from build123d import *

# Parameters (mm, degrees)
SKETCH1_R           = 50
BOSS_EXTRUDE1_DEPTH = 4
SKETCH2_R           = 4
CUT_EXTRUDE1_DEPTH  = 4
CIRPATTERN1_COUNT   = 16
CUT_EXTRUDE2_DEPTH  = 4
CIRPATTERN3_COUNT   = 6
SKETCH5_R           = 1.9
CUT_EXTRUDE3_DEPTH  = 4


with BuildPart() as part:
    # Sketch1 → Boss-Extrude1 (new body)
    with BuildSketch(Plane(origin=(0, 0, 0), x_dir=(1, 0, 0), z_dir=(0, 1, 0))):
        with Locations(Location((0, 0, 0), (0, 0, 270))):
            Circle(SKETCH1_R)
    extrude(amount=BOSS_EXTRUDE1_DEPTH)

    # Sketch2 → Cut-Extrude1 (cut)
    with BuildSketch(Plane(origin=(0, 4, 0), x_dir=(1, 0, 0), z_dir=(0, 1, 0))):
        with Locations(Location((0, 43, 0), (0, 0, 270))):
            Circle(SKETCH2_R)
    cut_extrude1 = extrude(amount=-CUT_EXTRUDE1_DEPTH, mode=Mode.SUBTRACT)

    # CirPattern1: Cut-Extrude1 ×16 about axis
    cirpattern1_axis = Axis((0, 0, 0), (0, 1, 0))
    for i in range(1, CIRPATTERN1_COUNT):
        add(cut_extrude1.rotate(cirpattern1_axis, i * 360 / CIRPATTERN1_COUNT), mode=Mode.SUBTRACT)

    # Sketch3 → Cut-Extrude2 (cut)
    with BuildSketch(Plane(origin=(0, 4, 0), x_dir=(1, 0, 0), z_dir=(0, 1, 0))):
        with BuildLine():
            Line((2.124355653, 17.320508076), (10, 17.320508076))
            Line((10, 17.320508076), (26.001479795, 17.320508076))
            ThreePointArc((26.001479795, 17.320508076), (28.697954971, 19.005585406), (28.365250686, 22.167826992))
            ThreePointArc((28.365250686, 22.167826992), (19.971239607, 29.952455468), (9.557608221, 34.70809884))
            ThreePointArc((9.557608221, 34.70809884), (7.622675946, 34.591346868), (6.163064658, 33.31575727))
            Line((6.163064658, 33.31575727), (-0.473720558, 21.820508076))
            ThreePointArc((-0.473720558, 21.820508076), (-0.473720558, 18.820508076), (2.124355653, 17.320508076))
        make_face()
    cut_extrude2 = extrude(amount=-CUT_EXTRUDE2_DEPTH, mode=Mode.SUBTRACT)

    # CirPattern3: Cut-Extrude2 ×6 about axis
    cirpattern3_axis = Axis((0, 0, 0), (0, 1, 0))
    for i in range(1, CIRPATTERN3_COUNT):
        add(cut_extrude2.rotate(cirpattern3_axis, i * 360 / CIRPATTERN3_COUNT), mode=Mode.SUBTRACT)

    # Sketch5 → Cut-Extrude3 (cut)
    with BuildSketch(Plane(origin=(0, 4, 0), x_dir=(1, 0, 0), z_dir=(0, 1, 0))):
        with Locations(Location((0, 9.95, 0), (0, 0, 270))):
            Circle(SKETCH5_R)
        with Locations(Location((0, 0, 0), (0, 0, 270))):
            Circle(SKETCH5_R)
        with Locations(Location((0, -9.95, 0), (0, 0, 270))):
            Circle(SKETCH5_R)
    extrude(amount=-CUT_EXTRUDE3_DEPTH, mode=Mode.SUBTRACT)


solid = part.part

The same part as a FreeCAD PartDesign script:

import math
import FreeCAD as App
import Part
import Sketcher
from FreeCAD import Vector
Q = App.Units.Quantity

doc = App.newDocument("Part")
params = doc.addObject("Spreadsheet::Sheet", "Params")
for row, (alias, value) in enumerate([
    ("sketch1_diameter", "100 mm"),
    ("pad1_length", "4 mm"),
    ("sketch2_diameter", "8 mm"),
    ("pocket1_length", "4 mm"),
    ("sketch3_radius", "3 mm"),
    ("sketch3_radius2", "36 mm"),
    ("pocket2_length", "4 mm"),
    ("sketch4_diameter", "3.8 mm"),
    ("pocket3_length", "4 mm"),
], start=1):
    params.set(f"A{row}", alias)
    params.set(f"B{row}", "=" + value)
    params.setAlias(f"B{row}", alias)

body = doc.addObject("PartDesign::Body", "Body")

# Sketch on XZ plane
sketch1 = body.newObject("Sketcher::SketchObject", "Sketch")
sketch1.AttachmentSupport = (doc.getObject("XZ_Plane"), [""])
sketch1.MapMode = "FlatFace"
sketch1.addGeometry(Part.Circle(Vector(0, 0, 0), Vector(0, 0, 1), 50), False)
sketch1.addConstraint(Sketcher.Constraint("Coincident", 0, 3, -1, 1))
sketch1.addConstraint(Sketcher.Constraint("Diameter", 0, 100.0))
sketch1.setExpression("Constraints[1]", "Params.sketch1_diameter")
pad1 = body.newObject("PartDesign::Pad", "Pad")
pad1.Profile = sketch1
pad1.setExpression("Length", "Params.pad1_length")
pad1.Reversed = True

# Sketch on XZ plane
sketch2 = body.newObject("Sketcher::SketchObject", "Sketch001")
sketch2.AttachmentSupport = (doc.getObject("XZ_Plane"), [""])
sketch2.MapMode = "FlatFace"
sketch2.AttachmentOffset = App.Placement(Vector(0, 0, -4), App.Rotation())
sketch2.addGeometry(Part.Circle(Vector(0, -43, 0), Vector(0, 0, 1), 4), False)
sketch2.addConstraint(Sketcher.Constraint("PointOnObject", 0, 3, -2))
sketch2.addConstraint(Sketcher.Constraint("Diameter", 0, 8.0))
sketch2.addConstraint(Sketcher.Constraint("DistanceY", 0, 3, -1, 1, 43.0))
sketch2.setExpression("Constraints[1]", "Params.sketch2_diameter")
pocket1 = body.newObject("PartDesign::Pocket", "Pocket")
pocket1.Profile = sketch2
pocket1.setExpression("Length", "Params.pocket1_length")
pocket1.Reversed = True
doc.recompute()

polarpattern = body.newObject("PartDesign::PolarPattern", "PolarPattern")
polarpattern.Originals = [pocket1]
polarpattern.Axis = (doc.getObject("Y_Axis"), [""])
polarpattern.Angle = 360
polarpattern.Occurrences = 16
body.Tip = polarpattern

# Sketch on XZ plane
sketch3 = body.newObject("Sketcher::SketchObject", "Sketch002")
sketch3.AttachmentSupport = (doc.getObject("XZ_Plane"), [""])
sketch3.MapMode = "FlatFace"
sketch3.AttachmentOffset = App.Placement(Vector(0, 0, -4), App.Rotation())
sketch3.addGeometry(Part.LineSegment(Vector(2.1, -17.3, 0), Vector(26, -17.3, 0)), False)
sketch3.addGeometry(Part.ArcOfCircle(Part.Circle(Vector(26, -20.3, 0), Vector(0, 0, 1), 3), math.radians(-38), math.radians(90)), False)
sketch3.addGeometry(Part.ArcOfCircle(Part.Circle(Vector(0, 0, 0), Vector(0, 0, 1), 36), math.radians(-75), math.radians(-38)), False)
sketch3.addGeometry(Part.ArcOfCircle(Part.Circle(Vector(8.8, -31.8, 0), Vector(0, 0, 1), 3), math.radians(-150), math.radians(-75)), False)
sketch3.addGeometry(Part.LineSegment(Vector(6.2, -33.3, 0), Vector(-0.5, -21.8, 0)), False)
sketch3.addGeometry(Part.ArcOfCircle(Part.Circle(Vector(2.1, -20.3, 0), Vector(0, 0, 1), 3), math.radians(90), math.radians(210)), False)
sketch3.addConstraint(Sketcher.Constraint("Tangent", 0, 2, 1, 2))
sketch3.addConstraint(Sketcher.Constraint("Tangent", 1, 1, 2, 2))
sketch3.addConstraint(Sketcher.Constraint("Tangent", 2, 1, 3, 2))
sketch3.addConstraint(Sketcher.Constraint("Tangent", 3, 1, 4, 1))
sketch3.addConstraint(Sketcher.Constraint("Tangent", 4, 2, 5, 2))
sketch3.addConstraint(Sketcher.Constraint("Tangent", 5, 1, 0, 1))
sketch3.addConstraint(Sketcher.Constraint("Horizontal", 0))
sketch3.addConstraint(Sketcher.Constraint("Coincident", 2, 3, -1, 1))
sketch3.addConstraint(Sketcher.Constraint("Equal", 1, 3))
sketch3.addConstraint(Sketcher.Constraint("Equal", 3, 5))
sketch3.addConstraint(Sketcher.Constraint("Radius", 1, 3.0))
sketch3.addConstraint(Sketcher.Constraint("Radius", 2, 36.0))
sketch3.addConstraint(Sketcher.Constraint("Angle", 4, Q("120 deg")))
sketch3.addConstraint(Sketcher.Constraint("DistanceY", 2, 1, -1, 1, 34.708099))
sketch3.addConstraint(Sketcher.Constraint("Distance", 4, 13.27357))
sketch3.setExpression("Constraints[10]", "Params.sketch3_radius")
sketch3.setExpression("Constraints[11]", "Params.sketch3_radius2")
pocket2 = body.newObject("PartDesign::Pocket", "Pocket001")
pocket2.Profile = sketch3
pocket2.setExpression("Length", "Params.pocket2_length")
pocket2.Reversed = True
doc.recompute()

polarpattern2 = body.newObject("PartDesign::PolarPattern", "PolarPattern001")
polarpattern2.Originals = [pocket2]
polarpattern2.Axis = (doc.getObject("Y_Axis"), [""])
polarpattern2.Angle = 360
polarpattern2.Occurrences = 6
body.Tip = polarpattern2

# Sketch on XZ plane
sketch4 = body.newObject("Sketcher::SketchObject", "Sketch003")
sketch4.AttachmentSupport = (doc.getObject("XZ_Plane"), [""])
sketch4.MapMode = "FlatFace"
sketch4.AttachmentOffset = App.Placement(Vector(0, 0, -4), App.Rotation())
sketch4.addGeometry(Part.Circle(Vector(0, -9.9, 0), Vector(0, 0, 1), 1.9), False)
sketch4.addGeometry(Part.Circle(Vector(0, 0, 0), Vector(0, 0, 1), 1.9), False)
sketch4.addGeometry(Part.Circle(Vector(0, 9.9, 0), Vector(0, 0, 1), 1.9), False)
sketch4.addConstraint(Sketcher.Constraint("Coincident", 1, 3, -1, 1))
sketch4.addConstraint(Sketcher.Constraint("Equal", 0, 1))
sketch4.addConstraint(Sketcher.Constraint("Equal", 1, 2))
sketch4.addConstraint(Sketcher.Constraint("Symmetric", 0, 3, 2, 3, -1, 1))
sketch4.addConstraint(Sketcher.Constraint("PointOnObject", 0, 3, -2))
sketch4.addConstraint(Sketcher.Constraint("Diameter", 0, 3.8))
sketch4.addConstraint(Sketcher.Constraint("DistanceY", 0, 3, 2, 3, 19.9))
sketch4.setExpression("Constraints[5]", "Params.sketch4_diameter")
pocket3 = body.newObject("PartDesign::Pocket", "Pocket002")
pocket3.Profile = sketch4
pocket3.setExpression("Length", "Params.pocket3_length")
pocket3.Reversed = True

doc.recompute()
